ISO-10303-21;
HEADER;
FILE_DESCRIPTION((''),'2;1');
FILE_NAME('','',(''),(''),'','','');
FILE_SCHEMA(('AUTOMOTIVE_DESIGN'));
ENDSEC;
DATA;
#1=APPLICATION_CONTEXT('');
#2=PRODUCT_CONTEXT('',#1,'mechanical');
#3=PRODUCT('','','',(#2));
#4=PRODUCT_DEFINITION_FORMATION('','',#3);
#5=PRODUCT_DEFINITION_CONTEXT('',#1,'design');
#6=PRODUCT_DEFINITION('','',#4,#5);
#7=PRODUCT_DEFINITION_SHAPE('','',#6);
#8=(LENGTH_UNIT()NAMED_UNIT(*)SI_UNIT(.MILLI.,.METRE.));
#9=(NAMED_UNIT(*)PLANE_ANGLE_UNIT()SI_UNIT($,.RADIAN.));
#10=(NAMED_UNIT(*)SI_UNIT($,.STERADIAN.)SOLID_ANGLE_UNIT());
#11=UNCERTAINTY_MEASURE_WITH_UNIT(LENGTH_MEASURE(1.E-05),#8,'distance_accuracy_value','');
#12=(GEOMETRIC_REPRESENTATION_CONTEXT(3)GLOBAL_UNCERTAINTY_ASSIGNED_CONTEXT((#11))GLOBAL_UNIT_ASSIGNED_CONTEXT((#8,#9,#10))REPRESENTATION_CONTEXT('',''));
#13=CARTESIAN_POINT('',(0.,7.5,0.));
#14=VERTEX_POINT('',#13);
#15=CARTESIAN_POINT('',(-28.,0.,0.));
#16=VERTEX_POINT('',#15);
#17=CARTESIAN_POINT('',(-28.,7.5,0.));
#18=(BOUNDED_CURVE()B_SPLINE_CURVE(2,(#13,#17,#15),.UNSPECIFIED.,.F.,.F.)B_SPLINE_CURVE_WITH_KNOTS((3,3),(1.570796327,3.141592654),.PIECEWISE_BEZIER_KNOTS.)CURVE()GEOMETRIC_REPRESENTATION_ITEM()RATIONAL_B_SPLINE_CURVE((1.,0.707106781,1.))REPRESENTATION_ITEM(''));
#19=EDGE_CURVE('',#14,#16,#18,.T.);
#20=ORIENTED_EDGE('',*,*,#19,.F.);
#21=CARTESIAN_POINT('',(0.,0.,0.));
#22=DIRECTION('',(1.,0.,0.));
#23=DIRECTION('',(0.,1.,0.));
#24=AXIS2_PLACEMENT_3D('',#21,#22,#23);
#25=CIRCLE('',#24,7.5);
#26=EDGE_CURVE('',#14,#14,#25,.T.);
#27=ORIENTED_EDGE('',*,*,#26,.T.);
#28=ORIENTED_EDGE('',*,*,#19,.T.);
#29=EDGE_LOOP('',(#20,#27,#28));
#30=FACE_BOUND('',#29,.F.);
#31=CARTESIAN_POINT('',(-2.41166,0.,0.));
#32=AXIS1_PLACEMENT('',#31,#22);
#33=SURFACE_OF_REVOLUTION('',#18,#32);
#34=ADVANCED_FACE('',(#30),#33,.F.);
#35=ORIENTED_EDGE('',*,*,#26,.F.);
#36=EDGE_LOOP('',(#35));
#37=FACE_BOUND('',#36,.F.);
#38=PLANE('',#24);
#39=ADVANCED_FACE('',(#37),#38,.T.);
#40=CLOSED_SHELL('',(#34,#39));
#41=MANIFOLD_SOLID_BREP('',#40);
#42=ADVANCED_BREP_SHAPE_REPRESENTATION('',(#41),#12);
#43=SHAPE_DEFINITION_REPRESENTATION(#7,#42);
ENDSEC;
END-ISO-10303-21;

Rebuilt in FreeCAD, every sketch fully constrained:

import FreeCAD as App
import Part
import Sketcher

V = App.Vector

doc = App.newDocument("Part")
params = doc.addObject("Spreadsheet::Sheet", "Params")
for row, (alias, value) in enumerate([
    ("revolution_angle", "360 deg"),
], start=1):
    params.set(f"A{row}", alias)
    params.set(f"B{row}", "=" + value)
    params.setAlias(f"B{row}", alias)

body = doc.addObject("PartDesign::Body", "Body")

# Sketch on XY plane
sketch1 = body.newObject("Sketcher::SketchObject", "Sketch")
sketch1.AttachmentSupport = (doc.getObject("XY_Plane"), [""])
sketch1.MapMode = "FlatFace"
sketch1.addGeometry([
    Part.LineSegment(V(0, 0, 0), V(0, 7.5, 0)),
    Part.BSplineCurve([V(0, 7.5, 0), V(-28, 7.5, 0), V(-28, 0, 0)], [3, 3], [1.570796327, 3.141592654], False, 2, [1, 0.707106781, 1], False),
    Part.LineSegment(V(-28, 0, 0), V(0, 0, 0)),
], False)
sketch1.addConstraint([
    Sketcher.Constraint("Block", 1),
    Sketcher.Constraint("Coincident", 0, 2, 1, 1),
    Sketcher.Constraint("Coincident", 1, 2, 2, 1),
    Sketcher.Constraint("Coincident", 2, 2, 0, 1),
    Sketcher.Constraint("Vertical", 0),
    Sketcher.Constraint("Horizontal", 2),
])
revolution = body.newObject("PartDesign::Revolution", "Revolution")
revolution.Profile = sketch1
revolution.ReferenceAxis = (sketch1, ["H_Axis"])
revolution.setExpression("Angle", "Params.revolution_angle")

doc.recompute()
